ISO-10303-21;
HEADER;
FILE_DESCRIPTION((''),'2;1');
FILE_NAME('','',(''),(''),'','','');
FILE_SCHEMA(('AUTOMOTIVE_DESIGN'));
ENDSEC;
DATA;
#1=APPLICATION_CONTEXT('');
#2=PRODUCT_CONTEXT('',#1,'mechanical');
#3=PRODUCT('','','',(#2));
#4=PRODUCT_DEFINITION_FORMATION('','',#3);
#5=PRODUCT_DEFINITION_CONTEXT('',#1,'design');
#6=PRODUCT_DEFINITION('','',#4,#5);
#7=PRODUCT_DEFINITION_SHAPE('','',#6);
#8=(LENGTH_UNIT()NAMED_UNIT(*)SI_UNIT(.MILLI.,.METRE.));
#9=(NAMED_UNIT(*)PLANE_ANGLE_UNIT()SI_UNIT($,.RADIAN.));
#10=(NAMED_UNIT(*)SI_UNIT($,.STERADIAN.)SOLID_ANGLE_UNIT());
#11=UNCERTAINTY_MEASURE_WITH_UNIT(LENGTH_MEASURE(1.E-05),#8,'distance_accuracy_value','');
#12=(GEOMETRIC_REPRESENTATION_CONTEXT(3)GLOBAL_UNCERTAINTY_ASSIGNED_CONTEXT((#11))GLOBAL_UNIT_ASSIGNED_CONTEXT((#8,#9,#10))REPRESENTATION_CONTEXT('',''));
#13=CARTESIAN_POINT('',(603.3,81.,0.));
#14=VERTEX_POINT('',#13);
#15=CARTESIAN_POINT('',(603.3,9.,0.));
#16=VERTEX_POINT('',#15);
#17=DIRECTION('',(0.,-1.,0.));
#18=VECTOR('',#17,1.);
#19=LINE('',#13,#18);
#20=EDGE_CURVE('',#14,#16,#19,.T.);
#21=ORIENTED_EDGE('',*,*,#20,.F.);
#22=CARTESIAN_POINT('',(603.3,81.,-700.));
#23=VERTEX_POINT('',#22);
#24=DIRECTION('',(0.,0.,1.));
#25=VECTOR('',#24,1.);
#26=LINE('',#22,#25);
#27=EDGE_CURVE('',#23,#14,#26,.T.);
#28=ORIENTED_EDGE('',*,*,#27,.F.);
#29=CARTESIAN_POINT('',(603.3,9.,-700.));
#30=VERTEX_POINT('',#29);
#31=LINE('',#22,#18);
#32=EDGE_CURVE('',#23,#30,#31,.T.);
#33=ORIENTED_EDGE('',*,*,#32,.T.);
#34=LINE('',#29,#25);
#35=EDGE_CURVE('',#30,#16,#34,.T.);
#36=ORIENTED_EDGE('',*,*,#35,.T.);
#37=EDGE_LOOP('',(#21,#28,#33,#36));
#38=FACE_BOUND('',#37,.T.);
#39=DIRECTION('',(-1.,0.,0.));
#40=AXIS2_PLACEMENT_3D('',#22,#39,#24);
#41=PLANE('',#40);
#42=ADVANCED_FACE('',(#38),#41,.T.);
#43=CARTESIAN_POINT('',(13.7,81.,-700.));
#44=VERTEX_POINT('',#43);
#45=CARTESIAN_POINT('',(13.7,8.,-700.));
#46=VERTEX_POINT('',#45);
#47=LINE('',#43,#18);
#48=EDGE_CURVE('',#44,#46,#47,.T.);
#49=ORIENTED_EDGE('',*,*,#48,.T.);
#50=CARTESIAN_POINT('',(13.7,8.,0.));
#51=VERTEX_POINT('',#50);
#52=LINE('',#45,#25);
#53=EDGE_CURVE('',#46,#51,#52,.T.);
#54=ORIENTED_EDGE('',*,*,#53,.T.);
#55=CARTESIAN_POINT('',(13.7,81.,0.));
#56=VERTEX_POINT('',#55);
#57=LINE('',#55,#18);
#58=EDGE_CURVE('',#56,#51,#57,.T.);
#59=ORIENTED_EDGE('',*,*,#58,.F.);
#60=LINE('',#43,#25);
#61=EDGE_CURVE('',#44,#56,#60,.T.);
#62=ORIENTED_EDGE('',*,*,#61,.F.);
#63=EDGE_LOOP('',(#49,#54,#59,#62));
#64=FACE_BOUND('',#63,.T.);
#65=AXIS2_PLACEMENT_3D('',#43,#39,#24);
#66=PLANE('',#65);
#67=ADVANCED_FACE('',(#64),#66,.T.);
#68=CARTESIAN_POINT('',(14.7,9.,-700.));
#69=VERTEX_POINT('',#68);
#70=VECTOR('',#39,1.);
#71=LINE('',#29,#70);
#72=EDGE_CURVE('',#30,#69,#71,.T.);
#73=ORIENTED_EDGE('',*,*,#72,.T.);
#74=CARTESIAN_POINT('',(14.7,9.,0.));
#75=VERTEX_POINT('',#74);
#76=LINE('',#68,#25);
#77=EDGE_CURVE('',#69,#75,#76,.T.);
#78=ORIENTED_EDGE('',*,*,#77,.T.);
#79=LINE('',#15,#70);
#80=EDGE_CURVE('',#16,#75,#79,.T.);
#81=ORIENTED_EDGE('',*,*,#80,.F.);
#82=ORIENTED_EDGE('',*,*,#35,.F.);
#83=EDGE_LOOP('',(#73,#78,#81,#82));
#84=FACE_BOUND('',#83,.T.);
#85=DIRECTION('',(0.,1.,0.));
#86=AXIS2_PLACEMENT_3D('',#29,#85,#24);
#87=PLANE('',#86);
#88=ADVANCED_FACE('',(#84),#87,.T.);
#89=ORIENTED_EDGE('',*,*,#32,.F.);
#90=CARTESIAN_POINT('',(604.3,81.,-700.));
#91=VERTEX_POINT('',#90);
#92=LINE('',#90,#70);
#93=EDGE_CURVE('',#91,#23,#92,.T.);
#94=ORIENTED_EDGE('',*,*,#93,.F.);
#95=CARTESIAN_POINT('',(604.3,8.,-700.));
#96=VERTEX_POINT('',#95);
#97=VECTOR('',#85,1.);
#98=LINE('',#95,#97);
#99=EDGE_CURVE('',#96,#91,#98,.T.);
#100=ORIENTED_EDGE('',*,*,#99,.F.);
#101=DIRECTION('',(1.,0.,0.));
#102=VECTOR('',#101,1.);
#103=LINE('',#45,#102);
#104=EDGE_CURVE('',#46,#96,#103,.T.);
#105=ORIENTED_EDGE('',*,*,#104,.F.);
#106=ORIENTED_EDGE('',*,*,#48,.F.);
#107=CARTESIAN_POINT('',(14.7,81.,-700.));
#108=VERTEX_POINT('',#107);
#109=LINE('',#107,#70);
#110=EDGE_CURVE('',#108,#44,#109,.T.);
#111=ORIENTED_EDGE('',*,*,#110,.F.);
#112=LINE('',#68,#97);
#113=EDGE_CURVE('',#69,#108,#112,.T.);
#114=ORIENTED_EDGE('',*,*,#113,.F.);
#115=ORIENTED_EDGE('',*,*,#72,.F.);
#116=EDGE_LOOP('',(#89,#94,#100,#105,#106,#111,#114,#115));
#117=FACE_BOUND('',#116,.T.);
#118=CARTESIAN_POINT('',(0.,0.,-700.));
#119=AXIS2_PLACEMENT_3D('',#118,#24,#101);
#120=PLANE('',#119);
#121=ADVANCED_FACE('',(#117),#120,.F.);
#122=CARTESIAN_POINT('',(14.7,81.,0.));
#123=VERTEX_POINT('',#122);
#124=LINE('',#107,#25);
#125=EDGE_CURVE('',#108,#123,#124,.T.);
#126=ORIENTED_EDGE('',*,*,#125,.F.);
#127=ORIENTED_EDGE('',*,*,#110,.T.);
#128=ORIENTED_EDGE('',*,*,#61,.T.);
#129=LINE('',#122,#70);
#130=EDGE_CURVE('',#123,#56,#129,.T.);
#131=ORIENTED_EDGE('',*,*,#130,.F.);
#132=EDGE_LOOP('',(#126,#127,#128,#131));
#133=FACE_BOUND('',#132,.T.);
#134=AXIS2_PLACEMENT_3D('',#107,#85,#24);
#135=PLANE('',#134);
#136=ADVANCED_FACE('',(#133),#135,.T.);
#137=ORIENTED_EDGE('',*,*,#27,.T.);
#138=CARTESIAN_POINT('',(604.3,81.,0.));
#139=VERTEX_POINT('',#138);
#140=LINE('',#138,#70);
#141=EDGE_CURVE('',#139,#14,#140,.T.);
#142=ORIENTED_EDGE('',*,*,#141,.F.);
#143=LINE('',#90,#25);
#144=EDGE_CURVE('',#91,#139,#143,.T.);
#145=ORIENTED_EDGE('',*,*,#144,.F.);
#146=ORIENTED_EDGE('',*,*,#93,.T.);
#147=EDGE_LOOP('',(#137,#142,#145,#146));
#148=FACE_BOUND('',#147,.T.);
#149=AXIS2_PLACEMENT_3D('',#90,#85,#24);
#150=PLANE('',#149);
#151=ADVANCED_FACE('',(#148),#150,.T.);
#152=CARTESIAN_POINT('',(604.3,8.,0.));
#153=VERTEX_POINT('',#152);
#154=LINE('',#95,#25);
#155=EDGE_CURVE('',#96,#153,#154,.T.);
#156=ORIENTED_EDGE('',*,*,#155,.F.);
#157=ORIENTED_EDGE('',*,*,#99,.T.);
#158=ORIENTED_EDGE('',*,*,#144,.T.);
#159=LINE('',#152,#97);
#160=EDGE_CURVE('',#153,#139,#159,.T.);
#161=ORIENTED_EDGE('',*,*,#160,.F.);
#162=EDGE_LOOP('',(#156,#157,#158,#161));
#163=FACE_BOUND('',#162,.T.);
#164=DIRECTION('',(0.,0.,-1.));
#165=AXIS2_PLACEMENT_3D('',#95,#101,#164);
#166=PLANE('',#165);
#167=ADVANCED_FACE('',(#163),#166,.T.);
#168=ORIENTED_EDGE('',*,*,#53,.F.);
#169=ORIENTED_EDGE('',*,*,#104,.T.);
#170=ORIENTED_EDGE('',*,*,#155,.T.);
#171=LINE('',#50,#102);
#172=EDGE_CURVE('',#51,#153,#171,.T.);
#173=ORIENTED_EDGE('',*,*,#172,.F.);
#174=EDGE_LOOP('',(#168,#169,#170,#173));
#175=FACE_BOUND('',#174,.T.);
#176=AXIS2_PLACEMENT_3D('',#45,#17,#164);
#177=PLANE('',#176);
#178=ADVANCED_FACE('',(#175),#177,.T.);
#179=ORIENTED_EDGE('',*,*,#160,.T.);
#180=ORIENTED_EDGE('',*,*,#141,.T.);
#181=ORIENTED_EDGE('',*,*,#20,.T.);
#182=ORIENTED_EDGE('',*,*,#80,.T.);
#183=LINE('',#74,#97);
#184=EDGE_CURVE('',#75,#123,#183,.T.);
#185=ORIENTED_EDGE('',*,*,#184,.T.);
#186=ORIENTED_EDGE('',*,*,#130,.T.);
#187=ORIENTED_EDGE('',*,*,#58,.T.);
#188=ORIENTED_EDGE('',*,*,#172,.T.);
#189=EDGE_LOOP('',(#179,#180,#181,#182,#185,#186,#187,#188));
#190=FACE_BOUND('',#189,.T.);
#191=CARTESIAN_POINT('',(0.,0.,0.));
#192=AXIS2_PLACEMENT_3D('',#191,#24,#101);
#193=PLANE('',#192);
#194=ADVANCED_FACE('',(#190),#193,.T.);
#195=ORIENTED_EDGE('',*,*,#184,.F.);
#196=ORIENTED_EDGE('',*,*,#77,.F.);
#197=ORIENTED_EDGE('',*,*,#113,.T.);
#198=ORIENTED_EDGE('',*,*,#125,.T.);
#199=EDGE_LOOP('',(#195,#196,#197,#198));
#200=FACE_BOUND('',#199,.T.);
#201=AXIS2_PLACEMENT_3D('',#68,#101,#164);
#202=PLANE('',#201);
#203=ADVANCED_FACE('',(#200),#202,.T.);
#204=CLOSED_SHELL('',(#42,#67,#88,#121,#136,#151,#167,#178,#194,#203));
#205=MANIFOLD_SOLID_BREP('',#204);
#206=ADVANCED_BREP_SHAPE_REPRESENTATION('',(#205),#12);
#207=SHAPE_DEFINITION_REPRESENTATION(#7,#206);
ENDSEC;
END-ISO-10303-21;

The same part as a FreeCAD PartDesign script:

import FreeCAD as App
import Part
import Sketcher
from FreeCAD import Vector
Q = App.Units.Quantity


def add_polygon(sketch, points):
    """Adds a closed chain of lines whose ends are joined by coincident constraints."""
    first, n = sketch.GeometryCount, len(points)
    for a, b in zip(points, points[1:] + points[:1]):
        sketch.addGeometry(Part.LineSegment(App.Vector(*a, 0), App.Vector(*b, 0)), False)
    for i in range(n):
        sketch.addConstraint(Sketcher.Constraint("Coincident", first + i, 2, first + (i + 1) % n, 1))

doc = App.newDocument("Part")
body = doc.addObject("PartDesign::Body", "Body")

# Sketch on XY plane
sketch1 = body.newObject("Sketcher::SketchObject", "Sketch")
sketch1.AttachmentSupport = (doc.getObject("XY_Plane"), [""])
sketch1.MapMode = "FlatFace"
add_polygon(sketch1, [(13.7, 81), (13.7, 8), (604.3, 8), (604.3, 81), (603.3, 81), (603.3, 9), (14.7, 9), (14.7, 81)])  # lines 0-7
sketch1.addConstraint([
    Sketcher.Constraint("Vertical", 0),
    Sketcher.Constraint("Horizontal", 1),
    Sketcher.Constraint("Vertical", 2),
    Sketcher.Constraint("Horizontal", 3),
    Sketcher.Constraint("Vertical", 4),
    Sketcher.Constraint("Horizontal", 5),
    Sketcher.Constraint("Vertical", 6),
    Sketcher.Constraint("Horizontal", 7),
    Sketcher.Constraint("Horizontal", 3, 2, 6, 2),
    Sketcher.Constraint("Equal", 3, 7),
    Sketcher.Constraint("DistanceX", 3, 2, 3, 1, Q("1 mm")),
    Sketcher.Constraint("DistanceY", 0, 2, 0, 1, Q("73 mm")),
    Sketcher.Constraint("DistanceY", 4, 2, 4, 1, Q("72 mm")),
    Sketcher.Constraint("DistanceX", 1, 1, 1, 2, Q("590.6 mm")),
    Sketcher.Constraint("DistanceY", -1, 1, 0, 2, Q("8 mm")),
    Sketcher.Constraint("DistanceX", -1, 1, 0, 2, Q("13.7 mm")),
])
pad1 = body.newObject("PartDesign::Pad", "Pad")
pad1.Profile = sketch1
pad1.Length = 700
pad1.Reversed = True

doc.recompute()
